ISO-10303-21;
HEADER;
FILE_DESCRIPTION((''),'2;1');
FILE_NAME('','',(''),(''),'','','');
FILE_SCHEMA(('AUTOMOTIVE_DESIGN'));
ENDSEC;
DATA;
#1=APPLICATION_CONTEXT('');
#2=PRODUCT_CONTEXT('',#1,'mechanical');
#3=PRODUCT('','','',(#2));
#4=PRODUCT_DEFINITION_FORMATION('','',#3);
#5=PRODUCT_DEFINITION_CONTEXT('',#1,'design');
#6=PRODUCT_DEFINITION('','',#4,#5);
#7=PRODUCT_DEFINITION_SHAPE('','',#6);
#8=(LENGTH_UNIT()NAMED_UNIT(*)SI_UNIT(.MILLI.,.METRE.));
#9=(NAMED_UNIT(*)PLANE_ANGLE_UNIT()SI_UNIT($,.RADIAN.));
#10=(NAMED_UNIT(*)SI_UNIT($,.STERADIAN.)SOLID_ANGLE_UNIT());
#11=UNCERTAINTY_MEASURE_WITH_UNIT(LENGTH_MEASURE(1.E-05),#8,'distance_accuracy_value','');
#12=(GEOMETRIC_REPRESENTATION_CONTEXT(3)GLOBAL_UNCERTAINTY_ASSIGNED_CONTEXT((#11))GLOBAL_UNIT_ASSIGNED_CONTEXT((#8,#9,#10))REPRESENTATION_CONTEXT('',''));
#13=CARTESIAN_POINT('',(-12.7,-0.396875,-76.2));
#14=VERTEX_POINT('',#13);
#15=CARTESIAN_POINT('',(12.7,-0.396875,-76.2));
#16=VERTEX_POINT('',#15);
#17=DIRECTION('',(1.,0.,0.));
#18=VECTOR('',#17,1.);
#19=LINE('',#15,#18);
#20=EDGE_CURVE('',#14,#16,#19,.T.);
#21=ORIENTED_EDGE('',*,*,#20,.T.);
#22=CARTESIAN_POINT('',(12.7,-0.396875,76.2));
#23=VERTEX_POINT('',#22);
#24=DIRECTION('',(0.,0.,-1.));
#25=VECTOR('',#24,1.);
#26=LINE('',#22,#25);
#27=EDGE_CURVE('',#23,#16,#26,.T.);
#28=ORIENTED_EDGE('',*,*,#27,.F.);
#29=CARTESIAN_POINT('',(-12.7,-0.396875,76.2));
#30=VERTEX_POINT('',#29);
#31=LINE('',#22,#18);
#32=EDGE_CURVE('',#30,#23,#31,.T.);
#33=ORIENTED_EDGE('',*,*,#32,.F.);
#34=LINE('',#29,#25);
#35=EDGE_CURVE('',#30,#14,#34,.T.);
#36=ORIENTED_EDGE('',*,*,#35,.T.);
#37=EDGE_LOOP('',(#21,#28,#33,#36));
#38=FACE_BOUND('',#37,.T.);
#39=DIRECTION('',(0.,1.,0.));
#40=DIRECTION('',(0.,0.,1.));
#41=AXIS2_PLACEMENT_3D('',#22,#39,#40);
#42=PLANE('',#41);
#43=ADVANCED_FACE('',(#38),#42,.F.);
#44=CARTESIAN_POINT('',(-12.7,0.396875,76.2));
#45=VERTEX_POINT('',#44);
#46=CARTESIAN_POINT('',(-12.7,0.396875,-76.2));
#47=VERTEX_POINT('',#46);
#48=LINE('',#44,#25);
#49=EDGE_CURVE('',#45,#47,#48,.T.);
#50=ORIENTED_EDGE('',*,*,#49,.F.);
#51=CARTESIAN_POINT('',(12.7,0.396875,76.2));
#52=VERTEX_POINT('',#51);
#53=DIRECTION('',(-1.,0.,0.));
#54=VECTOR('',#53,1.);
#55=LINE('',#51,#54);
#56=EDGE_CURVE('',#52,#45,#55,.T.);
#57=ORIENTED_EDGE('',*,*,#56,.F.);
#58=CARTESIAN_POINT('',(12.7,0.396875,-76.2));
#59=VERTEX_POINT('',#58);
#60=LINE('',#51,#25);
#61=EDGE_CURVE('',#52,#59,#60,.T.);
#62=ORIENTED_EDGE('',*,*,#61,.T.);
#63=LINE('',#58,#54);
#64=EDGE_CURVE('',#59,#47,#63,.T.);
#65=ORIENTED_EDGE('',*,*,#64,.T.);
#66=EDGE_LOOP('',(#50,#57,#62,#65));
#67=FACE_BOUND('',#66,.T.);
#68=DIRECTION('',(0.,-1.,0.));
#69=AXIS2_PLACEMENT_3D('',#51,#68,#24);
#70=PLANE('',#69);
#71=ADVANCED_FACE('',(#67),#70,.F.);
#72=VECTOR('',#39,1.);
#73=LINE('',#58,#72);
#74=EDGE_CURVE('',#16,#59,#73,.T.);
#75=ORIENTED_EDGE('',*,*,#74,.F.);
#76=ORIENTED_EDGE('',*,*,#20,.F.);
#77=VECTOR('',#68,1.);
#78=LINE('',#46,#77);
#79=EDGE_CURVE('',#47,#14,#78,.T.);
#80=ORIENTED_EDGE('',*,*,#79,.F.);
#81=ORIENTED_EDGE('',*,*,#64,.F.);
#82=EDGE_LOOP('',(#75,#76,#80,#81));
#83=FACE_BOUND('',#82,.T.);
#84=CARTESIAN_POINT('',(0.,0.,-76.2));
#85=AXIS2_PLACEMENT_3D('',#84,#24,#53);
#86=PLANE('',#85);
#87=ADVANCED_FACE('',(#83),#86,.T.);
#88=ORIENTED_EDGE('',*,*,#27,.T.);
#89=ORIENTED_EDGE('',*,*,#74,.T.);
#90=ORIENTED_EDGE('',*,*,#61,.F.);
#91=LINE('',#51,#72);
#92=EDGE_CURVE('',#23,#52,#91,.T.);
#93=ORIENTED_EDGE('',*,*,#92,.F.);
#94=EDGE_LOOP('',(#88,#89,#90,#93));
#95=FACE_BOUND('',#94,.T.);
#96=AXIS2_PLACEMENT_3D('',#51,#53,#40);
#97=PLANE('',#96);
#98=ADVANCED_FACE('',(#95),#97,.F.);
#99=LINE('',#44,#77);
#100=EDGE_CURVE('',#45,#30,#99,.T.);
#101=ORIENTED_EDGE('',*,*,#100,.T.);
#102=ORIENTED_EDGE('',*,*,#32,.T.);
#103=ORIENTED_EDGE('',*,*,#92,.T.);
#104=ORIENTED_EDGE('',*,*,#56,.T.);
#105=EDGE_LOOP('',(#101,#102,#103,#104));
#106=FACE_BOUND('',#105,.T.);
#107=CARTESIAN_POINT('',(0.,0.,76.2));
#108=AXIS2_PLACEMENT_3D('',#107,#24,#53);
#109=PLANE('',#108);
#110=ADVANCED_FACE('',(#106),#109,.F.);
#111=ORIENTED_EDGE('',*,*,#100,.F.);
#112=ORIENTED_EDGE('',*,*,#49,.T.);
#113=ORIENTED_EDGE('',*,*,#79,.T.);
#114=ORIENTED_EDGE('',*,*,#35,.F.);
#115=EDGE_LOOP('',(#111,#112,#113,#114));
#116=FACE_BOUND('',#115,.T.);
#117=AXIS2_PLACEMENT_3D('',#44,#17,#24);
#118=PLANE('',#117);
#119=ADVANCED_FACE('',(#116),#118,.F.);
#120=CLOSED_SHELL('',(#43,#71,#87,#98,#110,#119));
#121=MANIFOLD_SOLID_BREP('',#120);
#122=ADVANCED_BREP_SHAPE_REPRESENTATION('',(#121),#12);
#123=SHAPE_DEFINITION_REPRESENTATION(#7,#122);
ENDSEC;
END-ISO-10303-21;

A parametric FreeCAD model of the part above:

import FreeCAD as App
import Part
import Sketcher

V = App.Vector
Q = App.Units.Quantity


def add_polygon(sketch, points):
    """Adds a closed chain of lines whose ends are joined by coincident constraints."""
    first, n = sketch.GeometryCount, len(points)
    for a, b in zip(points, points[1:] + points[:1]):
        sketch.addGeometry(Part.LineSegment(App.Vector(*a, 0), App.Vector(*b, 0)), False)
    for i in range(n):
        sketch.addConstraint(Sketcher.Constraint("Coincident", first + i, 2, first + (i + 1) % n, 1))

doc = App.newDocument("Part")
params = doc.addObject("Spreadsheet::Sheet", "Params")
for row, (alias, value) in enumerate([
    ("sketch1_width", "1 in"),
    ("sketch1_height", "0.03125 in"),
    ("pad1_length", "3 in"),
    ("pad1_length2", "3 in"),
], start=1):
    params.set(f"A{row}", alias)
    params.set(f"B{row}", "=" + value)
    params.setAlias(f"B{row}", alias)

body = doc.addObject("PartDesign::Body", "Body")

# Sketch on XY plane
sketch1 = body.newObject("Sketcher::SketchObject", "Sketch")
sketch1.AttachmentSupport = (doc.getObject("XY_Plane"), [""])
sketch1.MapMode = "FlatFace"
add_polygon(sketch1, [(-12.7, 0.4), (-12.7, -0.4), (12.7, -0.4), (12.7, 0.4)])  # lines 0-3
sketch1.addConstraint(Sketcher.Constraint("Vertical", 0))
sketch1.addConstraint(Sketcher.Constraint("Horizontal", 1))
sketch1.addConstraint(Sketcher.Constraint("Vertical", 2))
sketch1.addConstraint(Sketcher.Constraint("Horizontal", 3))
sketch1.addConstraint(Sketcher.Constraint("Symmetric", 0, 2, 2, 2, -1, 1))
sketch1.addConstraint(Sketcher.Constraint("DistanceX", 1, 1, 1, 2, Q("1 in")))
sketch1.addConstraint(Sketcher.Constraint("DistanceY", 0, 2, 0, 1, Q("0.03125 in")))
sketch1.setExpression("Constraints[9]", "Params.sketch1_width")
sketch1.setExpression("Constraints[10]", "Params.sketch1_height")
pad1 = body.newObject("PartDesign::Pad", "Pad")
pad1.Profile = sketch1
pad1.Type = "TwoLengths"
pad1.setExpression("Length", "Params.pad1_length")
pad1.setExpression("Length2", "Params.pad1_length2")

doc.recompute()
